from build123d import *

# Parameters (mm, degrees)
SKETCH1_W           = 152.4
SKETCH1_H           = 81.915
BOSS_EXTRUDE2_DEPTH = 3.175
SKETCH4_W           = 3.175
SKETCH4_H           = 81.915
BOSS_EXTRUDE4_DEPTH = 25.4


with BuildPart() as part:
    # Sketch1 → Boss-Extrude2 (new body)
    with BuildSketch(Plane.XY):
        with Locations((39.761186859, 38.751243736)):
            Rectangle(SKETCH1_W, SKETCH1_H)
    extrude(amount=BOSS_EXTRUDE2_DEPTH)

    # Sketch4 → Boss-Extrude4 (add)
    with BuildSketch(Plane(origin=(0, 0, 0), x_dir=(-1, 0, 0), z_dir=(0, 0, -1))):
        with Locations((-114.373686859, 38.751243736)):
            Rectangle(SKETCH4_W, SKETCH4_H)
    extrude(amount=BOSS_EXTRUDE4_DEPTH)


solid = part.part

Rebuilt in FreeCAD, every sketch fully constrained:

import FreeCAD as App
import Part
import Sketcher
from FreeCAD import Vector
Q = App.Units.Quantity

doc = App.newDocument("Part")
params = doc.addObject("Spreadsheet::Sheet", "Params")
for row, (alias, value) in enumerate([
    ("sketch1_width", "6 in"),
    ("sketch1_height", "3.225 in"),
    ("pad1_length", "0.125 in"),
    ("sketch2_width", "0.125 in"),
    ("sketch2_height", "3.225 in"),
    ("pad2_length", "1 in"),
], start=1):
    params.set(f"A{row}", alias)
    params.set(f"B{row}", "=" + value)
    params.setAlias(f"B{row}", alias)

body = doc.addObject("PartDesign::Body", "Body")

# Sketch on XY plane
sketch1 = body.newObject("Sketcher::SketchObject", "Sketch")
sketch1.AttachmentSupport = (doc.getObject("XY_Plane"), [""])
sketch1.MapMode = "FlatFace"
sketch1.addGeometry([
    Part.LineSegment(Vector(-36, 80, 0), Vector(-36, -2, 0)),
    Part.LineSegment(Vector(-36, -2, 0), Vector(116, -2, 0)),
    Part.LineSegment(Vector(116, -2, 0), Vector(116, 80, 0)),
    Part.LineSegment(Vector(116, 80, 0), Vector(-36, 80, 0)),
], False)
sketch1.addConstraint([
    Sketcher.Constraint("Coincident", 0, 2, 1, 1),
    Sketcher.Constraint("Coincident", 1, 2, 2, 1),
    Sketcher.Constraint("Coincident", 2, 2, 3, 1),
    Sketcher.Constraint("Coincident", 3, 2, 0, 1),
    Sketcher.Constraint("Vertical", 0),
    Sketcher.Constraint("Horizontal", 1),
    Sketcher.Constraint("Vertical", 2),
    Sketcher.Constraint("Horizontal", 3),
    Sketcher.Constraint("DistanceX", 1, 1, 1, 2, Q("6 in")),
    Sketcher.Constraint("DistanceY", 0, 2, 0, 1, Q("3.225 in")),
    Sketcher.Constraint("DistanceX", 0, 2, -1, 1, 36.438813),
    Sketcher.Constraint("DistanceY", 0, 2, -1, 1, 2.206256),
])
sketch1.setExpression("Constraints[8]", "Params.sketch1_width")
sketch1.setExpression("Constraints[9]", "Params.sketch1_height")
pad1 = body.newObject("PartDesign::Pad", "Pad")
pad1.Profile = sketch1
pad1.setExpression("Length", "Params.pad1_length")

# Sketch on XY plane
sketch2 = body.newObject("Sketcher::SketchObject", "Sketch001")
sketch2.AttachmentSupport = (doc.getObject("XY_Plane"), [""])
sketch2.MapMode = "FlatFace"
sketch2.addGeometry([
    Part.LineSegment(Vector(116, 79.7, 0), Vector(116, -2.2, 0)),
    Part.LineSegment(Vector(116, -2.2, 0), Vector(112.8, -2.2, 0)),
    Part.LineSegment(Vector(112.8, -2.2, 0), Vector(112.8, 79.7, 0)),
    Part.LineSegment(Vector(112.8, 79.7, 0), Vector(116, 79.7, 0)),
], False)
sketch2.addConstraint([
    Sketcher.Constraint("Coincident", 0, 2, 1, 1),
    Sketcher.Constraint("Coincident", 1, 2, 2, 1),
    Sketcher.Constraint("Coincident", 2, 2, 3, 1),
    Sketcher.Constraint("Coincident", 3, 2, 0, 1),
    Sketcher.Constraint("Vertical", 0),
    Sketcher.Constraint("Horizontal", 1),
    Sketcher.Constraint("Vertical", 2),
    Sketcher.Constraint("Horizontal", 3),
    Sketcher.Constraint("DistanceX", 1, 2, 1, 1, Q("0.125 in")),
    Sketcher.Constraint("DistanceY", 0, 2, 0, 1, Q("3.225 in")),
    Sketcher.Constraint("DistanceX", -1, 1, 0, 2, 115.961187),
    Sketcher.Constraint("DistanceY", 0, 2, -1, 1, 2.206256),
])
sketch2.setExpression("Constraints[8]", "Params.sketch2_width")
sketch2.setExpression("Constraints[9]", "Params.sketch2_height")
pad2 = body.newObject("PartDesign::Pad", "Pad001")
pad2.Profile = sketch2
pad2.setExpression("Length", "Params.pad2_length")
pad2.Reversed = True

doc.recompute()
